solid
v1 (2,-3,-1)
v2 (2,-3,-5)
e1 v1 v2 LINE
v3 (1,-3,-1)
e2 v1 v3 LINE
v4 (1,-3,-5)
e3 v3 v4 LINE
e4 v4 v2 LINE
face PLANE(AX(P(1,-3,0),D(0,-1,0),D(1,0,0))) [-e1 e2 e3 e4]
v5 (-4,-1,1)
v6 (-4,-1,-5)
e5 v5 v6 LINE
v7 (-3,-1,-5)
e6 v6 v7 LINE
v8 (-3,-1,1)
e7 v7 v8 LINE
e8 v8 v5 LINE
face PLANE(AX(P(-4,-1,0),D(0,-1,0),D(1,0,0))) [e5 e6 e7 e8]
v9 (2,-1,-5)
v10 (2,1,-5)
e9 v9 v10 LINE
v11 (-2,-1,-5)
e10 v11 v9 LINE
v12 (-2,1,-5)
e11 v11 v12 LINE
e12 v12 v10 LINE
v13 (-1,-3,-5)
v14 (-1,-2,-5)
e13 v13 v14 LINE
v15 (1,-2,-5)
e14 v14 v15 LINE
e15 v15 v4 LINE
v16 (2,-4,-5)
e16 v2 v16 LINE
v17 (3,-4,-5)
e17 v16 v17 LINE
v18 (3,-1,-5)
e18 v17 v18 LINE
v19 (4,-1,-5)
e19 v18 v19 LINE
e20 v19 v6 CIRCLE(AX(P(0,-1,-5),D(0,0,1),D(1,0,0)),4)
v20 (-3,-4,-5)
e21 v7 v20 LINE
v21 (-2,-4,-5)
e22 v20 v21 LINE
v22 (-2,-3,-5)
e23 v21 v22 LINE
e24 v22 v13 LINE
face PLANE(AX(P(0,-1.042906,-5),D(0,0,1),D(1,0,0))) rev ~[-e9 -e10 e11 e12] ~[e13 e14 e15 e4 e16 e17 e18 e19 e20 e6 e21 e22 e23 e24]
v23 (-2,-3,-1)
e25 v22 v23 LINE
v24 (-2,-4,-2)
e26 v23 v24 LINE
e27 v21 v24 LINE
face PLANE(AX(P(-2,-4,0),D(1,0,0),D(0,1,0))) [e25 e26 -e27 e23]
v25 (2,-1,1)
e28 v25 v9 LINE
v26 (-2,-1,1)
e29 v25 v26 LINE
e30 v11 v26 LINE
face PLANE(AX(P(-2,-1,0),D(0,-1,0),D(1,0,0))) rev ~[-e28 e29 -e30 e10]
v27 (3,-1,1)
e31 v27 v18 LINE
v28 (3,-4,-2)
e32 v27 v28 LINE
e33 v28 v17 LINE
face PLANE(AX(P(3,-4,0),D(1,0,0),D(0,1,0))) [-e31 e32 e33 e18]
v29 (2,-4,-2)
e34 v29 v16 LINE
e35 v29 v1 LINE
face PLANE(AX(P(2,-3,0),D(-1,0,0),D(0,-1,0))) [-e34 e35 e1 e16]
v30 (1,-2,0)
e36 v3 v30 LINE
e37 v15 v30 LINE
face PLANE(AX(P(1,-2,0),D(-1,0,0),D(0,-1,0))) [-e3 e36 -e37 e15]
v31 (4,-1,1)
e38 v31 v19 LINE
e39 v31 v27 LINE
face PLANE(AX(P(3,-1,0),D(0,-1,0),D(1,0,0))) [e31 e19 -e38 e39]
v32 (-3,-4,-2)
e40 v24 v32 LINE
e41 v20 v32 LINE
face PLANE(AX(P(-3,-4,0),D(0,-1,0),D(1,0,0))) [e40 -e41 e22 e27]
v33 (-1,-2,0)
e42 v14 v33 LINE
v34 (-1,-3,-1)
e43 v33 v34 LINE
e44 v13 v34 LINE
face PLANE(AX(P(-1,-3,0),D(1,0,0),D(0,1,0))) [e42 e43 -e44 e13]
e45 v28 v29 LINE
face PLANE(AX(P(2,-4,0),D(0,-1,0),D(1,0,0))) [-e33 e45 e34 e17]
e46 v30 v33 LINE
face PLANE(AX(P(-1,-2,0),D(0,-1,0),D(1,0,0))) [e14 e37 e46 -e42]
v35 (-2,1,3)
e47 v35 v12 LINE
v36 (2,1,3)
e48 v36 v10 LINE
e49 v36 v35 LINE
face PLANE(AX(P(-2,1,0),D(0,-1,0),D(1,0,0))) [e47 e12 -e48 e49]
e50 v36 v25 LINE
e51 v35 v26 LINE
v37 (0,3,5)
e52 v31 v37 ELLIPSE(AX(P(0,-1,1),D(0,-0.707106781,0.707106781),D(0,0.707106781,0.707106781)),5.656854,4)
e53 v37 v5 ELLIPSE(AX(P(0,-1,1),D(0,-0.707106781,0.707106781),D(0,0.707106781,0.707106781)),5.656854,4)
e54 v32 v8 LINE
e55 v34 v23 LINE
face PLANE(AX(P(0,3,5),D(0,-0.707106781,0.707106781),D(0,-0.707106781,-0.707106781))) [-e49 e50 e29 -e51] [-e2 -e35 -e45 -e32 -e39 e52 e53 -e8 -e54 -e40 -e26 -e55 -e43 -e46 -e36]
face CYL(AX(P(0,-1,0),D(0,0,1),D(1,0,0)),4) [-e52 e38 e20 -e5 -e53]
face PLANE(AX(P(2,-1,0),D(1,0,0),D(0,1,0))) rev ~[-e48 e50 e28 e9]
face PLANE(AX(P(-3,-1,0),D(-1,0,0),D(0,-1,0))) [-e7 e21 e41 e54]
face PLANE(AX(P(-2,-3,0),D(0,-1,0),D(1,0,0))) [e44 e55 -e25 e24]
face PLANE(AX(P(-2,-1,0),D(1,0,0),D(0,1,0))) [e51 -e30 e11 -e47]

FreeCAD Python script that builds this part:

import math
import FreeCAD as App
import Part
import Sketcher
Q = App.Units.Quantity


def add_polygon(sketch, points):
    """Adds a closed chain of lines whose ends are joined by coincident constraints."""
    first, n = sketch.GeometryCount, len(points)
    for a, b in zip(points, points[1:] + points[:1]):
        sketch.addGeometry(Part.LineSegment(App.Vector(*a, 0), App.Vector(*b, 0)), False)
    for i in range(n):
        sketch.addConstraint(Sketcher.Constraint("Coincident", first + i, 2, first + (i + 1) % n, 1))

doc = App.newDocument("Part")
body = doc.addObject("PartDesign::Body", "Body")

# Sketch on XY plane
sketch1 = body.newObject("Sketcher::SketchObject", "Sketch")
sketch1.AttachmentSupport = (doc.getObject("XY_Plane"), [""])
sketch1.MapMode = "FlatFace"
sketch1.addGeometry(Part.LineSegment(App.Vector(-4, -1, 0), App.Vector(-3, -1, 0)), False)  # 0
sketch1.addGeometry(Part.LineSegment(App.Vector(-3, -1, 0), App.Vector(-3, -4, 0)), False)  # 1
sketch1.addGeometry(Part.LineSegment(App.Vector(-3, -4, 0), App.Vector(-2, -4, 0)), False)  # 2
sketch1.addGeometry(Part.LineSegment(App.Vector(-2, -4, 0), App.Vector(-2, -3, 0)), False)  # 3
sketch1.addGeometry(Part.LineSegment(App.Vector(-2, -3, 0), App.Vector(-1, -3, 0)), False)  # 4
sketch1.addGeometry(Part.LineSegment(App.Vector(-1, -3, 0), App.Vector(-1, -2, 0)), False)  # 5
sketch1.addGeometry(Part.LineSegment(App.Vector(-1, -2, 0), App.Vector(1, -2, 0)), False)  # 6
sketch1.addGeometry(Part.LineSegment(App.Vector(1, -2, 0), App.Vector(1, -3, 0)), False)  # 7
sketch1.addGeometry(Part.LineSegment(App.Vector(1, -3, 0), App.Vector(2, -3, 0)), False)  # 8
sketch1.addGeometry(Part.LineSegment(App.Vector(2, -3, 0), App.Vector(2, -4, 0)), False)  # 9
sketch1.addGeometry(Part.LineSegment(App.Vector(2, -4, 0), App.Vector(3, -4, 0)), False)  # 10
sketch1.addGeometry(Part.LineSegment(App.Vector(3, -4, 0), App.Vector(3, -1, 0)), False)  # 11
sketch1.addGeometry(Part.LineSegment(App.Vector(3, -1, 0), App.Vector(4, -1, 0)), False)  # 12
sketch1.addGeometry(Part.ArcOfCircle(Part.Circle(App.Vector(0, -1, 0), App.Vector(0, 0, 1), 4), math.radians(0), math.radians(180)), False)  # 13
add_polygon(sketch1, [(2, -1), (-2, -1), (-2, 1), (2, 1)])  # lines 14-17
sketch1.addConstraint([
    Sketcher.Constraint("Coincident", 0, 2, 1, 1),
    Sketcher.Constraint("Coincident", 1, 2, 2, 1),
    Sketcher.Constraint("Coincident", 2, 2, 3, 1),
    Sketcher.Constraint("Coincident", 3, 2, 4, 1),
    Sketcher.Constraint("Coincident", 4, 2, 5, 1),
    Sketcher.Constraint("Coincident", 5, 2, 6, 1),
    Sketcher.Constraint("Coincident", 6, 2, 7, 1),
    Sketcher.Constraint("Coincident", 7, 2, 8, 1),
    Sketcher.Constraint("Coincident", 8, 2, 9, 1),
    Sketcher.Constraint("Coincident", 9, 2, 10, 1),
    Sketcher.Constraint("Coincident", 10, 2, 11, 1),
    Sketcher.Constraint("Coincident", 11, 2, 12, 1),
    Sketcher.Constraint("Coincident", 12, 2, 13, 1),
    Sketcher.Constraint("Coincident", 13, 2, 0, 1),
    Sketcher.Constraint("Horizontal", 0),
    Sketcher.Constraint("Vertical", 1),
    Sketcher.Constraint("Horizontal", 2),
    Sketcher.Constraint("Vertical", 3),
    Sketcher.Constraint("Horizontal", 4),
    Sketcher.Constraint("Vertical", 5),
    Sketcher.Constraint("Horizontal", 6),
    Sketcher.Constraint("Vertical", 7),
    Sketcher.Constraint("Horizontal", 8),
    Sketcher.Constraint("Vertical", 9),
    Sketcher.Constraint("Horizontal", 10),
    Sketcher.Constraint("Vertical", 11),
    Sketcher.Constraint("Horizontal", 12),
    Sketcher.Constraint("Horizontal", 14),
    Sketcher.Constraint("Vertical", 15),
    Sketcher.Constraint("Horizontal", 16),
    Sketcher.Constraint("Vertical", 17),
    Sketcher.Constraint("Symmetric", 14, 2, 16, 2, -1, 1),
    Sketcher.Constraint("Symmetric", 4, 2, 7, 2, -2),
    Sketcher.Constraint("Symmetric", 2, 2, 9, 2, -2),
    Sketcher.Constraint("Symmetric", 0, 2, 11, 2, -2),
    Sketcher.Constraint("PointOnObject", 13, 3, -2),
    Sketcher.Constraint("Horizontal", 13, 3, 0, 2),
    Sketcher.Constraint("Horizontal", 13, 2, 14, 2),
    Sketcher.Constraint("Vertical", 3, 2, 14, 2),
    Sketcher.Constraint("Equal", 0, 2),
    Sketcher.Constraint("Equal", 2, 4),
    Sketcher.Constraint("Equal", 12, 3),
    Sketcher.Constraint("Equal", 3, 5),
    Sketcher.Constraint("Equal", 6, 15),
    Sketcher.Constraint("Radius", 13, Q("4 mm")),
    Sketcher.Constraint("DistanceX", 0, 1, 0, 2, Q("1 mm")),
    Sketcher.Constraint("DistanceY", 1, 2, 1, 1, Q("3 mm")),
])
pad1 = body.newObject("PartDesign::Pad", "Pad")
pad1.Profile = sketch1
pad1.Length = 10
pad1.Midplane = True

# Sketch on YZ plane
sketch2 = body.newObject("Sketcher::SketchObject", "Sketch001")
sketch2.AttachmentSupport = (doc.getObject("YZ_Plane"), [""])
sketch2.MapMode = "FlatFace"
add_polygon(sketch2, [(-4, -2), (3, 5), (-4, 5)])  # lines 0-2
sketch2.addConstraint([
    Sketcher.Constraint("Horizontal", 1),
    Sketcher.Constraint("Vertical", 2),
    Sketcher.Constraint("Equal", 1, 2),
    Sketcher.Constraint("DistanceX", 1, 2, 1, 1, Q("7 mm")),
    Sketcher.Constraint("DistanceX", -1, 1, 0, 2, Q("3 mm")),
    Sketcher.Constraint("DistanceY", -1, 1, 0, 2, Q("5 mm")),
])
pocket1 = body.newObject("PartDesign::Pocket", "Pocket")
pocket1.Profile = sketch2
pocket1.Length = 8
pocket1.Midplane = True

doc.recompute()
